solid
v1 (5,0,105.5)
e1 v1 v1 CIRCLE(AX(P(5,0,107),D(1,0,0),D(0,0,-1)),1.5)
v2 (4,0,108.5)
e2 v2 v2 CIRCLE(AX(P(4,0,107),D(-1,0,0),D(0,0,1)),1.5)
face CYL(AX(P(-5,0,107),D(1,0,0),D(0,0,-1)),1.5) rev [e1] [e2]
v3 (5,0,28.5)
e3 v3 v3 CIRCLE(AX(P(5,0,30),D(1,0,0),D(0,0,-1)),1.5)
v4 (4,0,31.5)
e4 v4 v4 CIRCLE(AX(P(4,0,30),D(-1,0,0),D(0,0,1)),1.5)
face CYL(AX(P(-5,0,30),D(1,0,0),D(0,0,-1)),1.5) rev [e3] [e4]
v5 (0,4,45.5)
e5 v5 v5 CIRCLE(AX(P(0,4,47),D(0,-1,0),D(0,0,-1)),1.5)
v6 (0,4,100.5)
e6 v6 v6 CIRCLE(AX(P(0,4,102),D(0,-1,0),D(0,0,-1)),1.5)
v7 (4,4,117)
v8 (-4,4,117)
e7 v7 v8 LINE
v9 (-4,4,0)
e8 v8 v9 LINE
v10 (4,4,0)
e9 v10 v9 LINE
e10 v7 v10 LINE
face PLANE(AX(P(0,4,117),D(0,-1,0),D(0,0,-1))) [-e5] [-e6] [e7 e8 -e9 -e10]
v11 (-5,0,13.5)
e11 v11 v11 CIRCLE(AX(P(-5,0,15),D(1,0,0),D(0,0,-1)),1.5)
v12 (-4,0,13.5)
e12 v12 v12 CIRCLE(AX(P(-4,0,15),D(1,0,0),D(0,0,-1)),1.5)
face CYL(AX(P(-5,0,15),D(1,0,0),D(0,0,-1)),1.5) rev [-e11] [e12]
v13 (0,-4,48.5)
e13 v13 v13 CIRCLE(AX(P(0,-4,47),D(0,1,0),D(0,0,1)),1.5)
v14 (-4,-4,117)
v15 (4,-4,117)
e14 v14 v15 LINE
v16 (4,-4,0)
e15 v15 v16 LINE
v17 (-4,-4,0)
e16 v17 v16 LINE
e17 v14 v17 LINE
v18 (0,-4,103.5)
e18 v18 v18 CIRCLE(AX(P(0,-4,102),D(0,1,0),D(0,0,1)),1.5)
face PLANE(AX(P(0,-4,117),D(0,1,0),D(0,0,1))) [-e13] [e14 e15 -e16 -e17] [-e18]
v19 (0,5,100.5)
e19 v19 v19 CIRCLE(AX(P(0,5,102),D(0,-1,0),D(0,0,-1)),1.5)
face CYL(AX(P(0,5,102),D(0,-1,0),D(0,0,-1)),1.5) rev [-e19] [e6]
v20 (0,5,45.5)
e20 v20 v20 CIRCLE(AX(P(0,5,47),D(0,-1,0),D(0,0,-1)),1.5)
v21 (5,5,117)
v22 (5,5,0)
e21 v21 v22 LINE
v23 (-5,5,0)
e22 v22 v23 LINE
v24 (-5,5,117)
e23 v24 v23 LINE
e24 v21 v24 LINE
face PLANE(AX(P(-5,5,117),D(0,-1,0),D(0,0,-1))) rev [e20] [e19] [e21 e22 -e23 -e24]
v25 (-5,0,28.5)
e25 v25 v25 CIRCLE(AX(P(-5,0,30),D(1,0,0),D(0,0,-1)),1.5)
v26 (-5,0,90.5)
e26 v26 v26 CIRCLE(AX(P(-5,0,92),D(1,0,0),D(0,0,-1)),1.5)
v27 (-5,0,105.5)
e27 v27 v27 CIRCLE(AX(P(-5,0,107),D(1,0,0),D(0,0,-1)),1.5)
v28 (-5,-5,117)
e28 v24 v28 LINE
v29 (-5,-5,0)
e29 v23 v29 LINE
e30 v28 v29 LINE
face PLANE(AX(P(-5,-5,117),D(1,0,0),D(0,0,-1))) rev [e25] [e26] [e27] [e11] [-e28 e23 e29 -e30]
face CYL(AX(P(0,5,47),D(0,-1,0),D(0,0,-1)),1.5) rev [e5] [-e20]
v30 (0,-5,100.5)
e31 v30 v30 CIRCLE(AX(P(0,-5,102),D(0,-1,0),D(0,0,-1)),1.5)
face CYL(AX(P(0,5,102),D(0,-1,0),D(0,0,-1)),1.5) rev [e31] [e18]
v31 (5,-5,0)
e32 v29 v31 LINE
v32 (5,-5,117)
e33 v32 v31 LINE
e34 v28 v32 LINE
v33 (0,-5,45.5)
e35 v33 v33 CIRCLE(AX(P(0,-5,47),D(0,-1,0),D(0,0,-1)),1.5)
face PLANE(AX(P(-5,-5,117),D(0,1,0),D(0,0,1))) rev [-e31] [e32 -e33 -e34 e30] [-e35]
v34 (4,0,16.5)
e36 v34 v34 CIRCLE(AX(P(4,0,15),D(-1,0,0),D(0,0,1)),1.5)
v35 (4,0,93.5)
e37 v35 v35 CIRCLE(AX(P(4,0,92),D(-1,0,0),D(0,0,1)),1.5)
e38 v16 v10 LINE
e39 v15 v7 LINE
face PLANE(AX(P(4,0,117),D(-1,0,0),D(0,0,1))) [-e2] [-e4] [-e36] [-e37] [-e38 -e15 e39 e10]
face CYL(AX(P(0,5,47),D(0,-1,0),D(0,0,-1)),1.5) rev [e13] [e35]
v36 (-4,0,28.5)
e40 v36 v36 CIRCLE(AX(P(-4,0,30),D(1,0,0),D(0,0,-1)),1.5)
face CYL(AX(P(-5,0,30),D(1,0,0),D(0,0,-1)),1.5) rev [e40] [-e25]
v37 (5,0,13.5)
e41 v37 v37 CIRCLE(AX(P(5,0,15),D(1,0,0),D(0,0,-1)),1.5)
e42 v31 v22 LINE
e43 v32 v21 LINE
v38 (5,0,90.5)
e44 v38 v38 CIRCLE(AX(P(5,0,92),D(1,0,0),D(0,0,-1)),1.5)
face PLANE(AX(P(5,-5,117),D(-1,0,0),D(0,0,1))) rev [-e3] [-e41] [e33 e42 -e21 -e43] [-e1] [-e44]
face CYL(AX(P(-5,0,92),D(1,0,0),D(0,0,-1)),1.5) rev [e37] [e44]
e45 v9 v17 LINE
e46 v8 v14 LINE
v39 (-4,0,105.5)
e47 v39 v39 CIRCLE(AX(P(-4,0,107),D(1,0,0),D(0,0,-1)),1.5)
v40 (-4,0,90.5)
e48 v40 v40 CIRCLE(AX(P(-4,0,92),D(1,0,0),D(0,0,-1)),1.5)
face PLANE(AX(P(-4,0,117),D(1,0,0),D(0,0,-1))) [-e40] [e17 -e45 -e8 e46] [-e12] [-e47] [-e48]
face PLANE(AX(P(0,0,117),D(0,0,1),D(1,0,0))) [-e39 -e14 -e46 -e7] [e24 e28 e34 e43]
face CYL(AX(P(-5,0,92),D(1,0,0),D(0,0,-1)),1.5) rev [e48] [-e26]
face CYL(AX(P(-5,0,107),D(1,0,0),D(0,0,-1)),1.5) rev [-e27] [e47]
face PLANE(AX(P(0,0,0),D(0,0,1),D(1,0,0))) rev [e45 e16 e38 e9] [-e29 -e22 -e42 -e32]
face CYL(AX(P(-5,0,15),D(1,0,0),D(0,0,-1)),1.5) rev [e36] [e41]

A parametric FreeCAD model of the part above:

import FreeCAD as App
import Part
import Sketcher
from FreeCAD import Vector


def add_polygon(sketch, points):
    """Adds a closed chain of lines whose ends are joined by coincident constraints."""
    first, n = sketch.GeometryCount, len(points)
    for a, b in zip(points, points[1:] + points[:1]):
        sketch.addGeometry(Part.LineSegment(App.Vector(*a, 0), App.Vector(*b, 0)), False)
    for i in range(n):
        sketch.addConstraint(Sketcher.Constraint("Coincident", first + i, 2, first + (i + 1) % n, 1))

doc = App.newDocument("Part")
params = doc.addObject("Spreadsheet::Sheet", "Params")
for row, (alias, value) in enumerate([
    ("sketch1_width", "10 mm"),
    ("sketch1_width2", "8 mm"),
    ("pad1_length", "117 mm"),
    ("sketch2_diameter", "3 mm"),
    ("sketch3_diameter", "3 mm"),
    ("pocket2_length", "10 mm"),
], start=1):
    params.set(f"A{row}", alias)
    params.set(f"B{row}", "=" + value)
    params.setAlias(f"B{row}", alias)

body = doc.addObject("PartDesign::Body", "Body")

sketch1 = body.newObject("Sketcher::SketchObject", "Sketch")
sketch1.AttachmentSupport = (doc.getObject("XY_Plane"), [""])
sketch1.MapMode = "FlatFace"
add_polygon(sketch1, [(-5, 5), (-5, -5), (5, -5), (5, 5)])
add_polygon(sketch1, [(4, -4), (-4, -4), (-4, 4), (4, 4)])
sketch1.addConstraint([
    Sketcher.Constraint("Vertical", 0),
    Sketcher.Constraint("Horizontal", 1),
    Sketcher.Constraint("Vertical", 2),
    Sketcher.Constraint("Horizontal", 3),
    Sketcher.Constraint("Horizontal", 4),
    Sketcher.Constraint("Vertical", 5),
    Sketcher.Constraint("Horizontal", 6),
    Sketcher.Constraint("Vertical", 7),
    Sketcher.Constraint("Symmetric", 0, 2, 2, 2, -1, 1),
    Sketcher.Constraint("Symmetric", 4, 2, 6, 2, -1, 1),
    Sketcher.Constraint("Equal", 3, 0),
    Sketcher.Constraint("Equal", 6, 5),
    Sketcher.Constraint("DistanceX", 1, 1, 1, 2, 10.0),
    Sketcher.Constraint("DistanceX", 4, 2, 4, 1, 8.0),
])
sketch1.setExpression("Constraints[20]", "Params.sketch1_width")
sketch1.setExpression("Constraints[21]", "Params.sketch1_width2")
pad1 = body.newObject("PartDesign::Pad", "Pad")
pad1.Profile = sketch1
pad1.setExpression("Length", "Params.pad1_length")

sketch2 = body.newObject("Sketcher::SketchObject", "Sketch001")
sketch2.AttachmentSupport = (doc.getObject("YZ_Plane"), [""])
sketch2.MapMode = "FlatFace"
sketch2.AttachmentOffset = App.Placement(Vector(0, 0, 5), App.Rotation())
sketch2.addGeometry([
    Part.Circle(Vector(0, 15, 0), Vector(0, 0, 1), 1.5),
    Part.Circle(Vector(0, 30, 0), Vector(0, 0, 1), 1.5),
    Part.Circle(Vector(0, 107, 0), Vector(0, 0, 1), 1.5),
    Part.Circle(Vector(0, 92, 0), Vector(0, 0, 1), 1.5),
], False)
sketch2.addConstraint([
    Sketcher.Constraint("Equal", 0, 1),
    Sketcher.Constraint("Equal", 1, 2),
    Sketcher.Constraint("Equal", 2, 3),
    Sketcher.Constraint("PointOnObject", 0, 3, -2),
    Sketcher.Constraint("PointOnObject", 1, 3, -2),
    Sketcher.Constraint("PointOnObject", 2, 3, -2),
    Sketcher.Constraint("PointOnObject", 3, 3, -2),
    Sketcher.Constraint("Diameter", 0, 3.0),
    Sketcher.Constraint("DistanceY", -1, 1, 0, 3, 15.0),
    Sketcher.Constraint("DistanceY", -1, 1, 1, 3, 30.0),
    Sketcher.Constraint("DistanceY", -1, 1, 2, 3, 107.0),
    Sketcher.Constraint("DistanceY", -1, 1, 3, 3, 92.0),
])
sketch2.setExpression("Constraints[7]", "Params.sketch2_diameter")
pocket1 = body.newObject("PartDesign::Pocket", "Pocket")
pocket1.Profile = sketch2
pocket1.Type = "ThroughAll"

sketch3 = body.newObject("Sketcher::SketchObject", "Sketch002")
sketch3.AttachmentSupport = (doc.getObject("XZ_Plane"), [""])
sketch3.MapMode = "FlatFace"
sketch3.AttachmentOffset = App.Placement(Vector(0, 0, 5), App.Rotation())
sketch3.addGeometry([
    Part.Circle(Vector(0, 102, 0), Vector(0, 0, 1), 1.5),
    Part.Circle(Vector(0, 47, 0), Vector(0, 0, 1), 1.5),
], False)
sketch3.addConstraint([
    Sketcher.Constraint("Equal", 0, 1),
    Sketcher.Constraint("PointOnObject", 0, 3, -2),
    Sketcher.Constraint("PointOnObject", 1, 3, -2),
    Sketcher.Constraint("Diameter", 0, 3.0),
    Sketcher.Constraint("DistanceY", -1, 1, 0, 3, 102.0),
    Sketcher.Constraint("DistanceY", -1, 1, 1, 3, 47.0),
])
sketch3.setExpression("Constraints[3]", "Params.sketch3_diameter")
pocket2 = body.newObject("PartDesign::Pocket", "Pocket001")
pocket2.Profile = sketch3
pocket2.setExpression("Length", "Params.pocket2_length")

doc.recompute()
